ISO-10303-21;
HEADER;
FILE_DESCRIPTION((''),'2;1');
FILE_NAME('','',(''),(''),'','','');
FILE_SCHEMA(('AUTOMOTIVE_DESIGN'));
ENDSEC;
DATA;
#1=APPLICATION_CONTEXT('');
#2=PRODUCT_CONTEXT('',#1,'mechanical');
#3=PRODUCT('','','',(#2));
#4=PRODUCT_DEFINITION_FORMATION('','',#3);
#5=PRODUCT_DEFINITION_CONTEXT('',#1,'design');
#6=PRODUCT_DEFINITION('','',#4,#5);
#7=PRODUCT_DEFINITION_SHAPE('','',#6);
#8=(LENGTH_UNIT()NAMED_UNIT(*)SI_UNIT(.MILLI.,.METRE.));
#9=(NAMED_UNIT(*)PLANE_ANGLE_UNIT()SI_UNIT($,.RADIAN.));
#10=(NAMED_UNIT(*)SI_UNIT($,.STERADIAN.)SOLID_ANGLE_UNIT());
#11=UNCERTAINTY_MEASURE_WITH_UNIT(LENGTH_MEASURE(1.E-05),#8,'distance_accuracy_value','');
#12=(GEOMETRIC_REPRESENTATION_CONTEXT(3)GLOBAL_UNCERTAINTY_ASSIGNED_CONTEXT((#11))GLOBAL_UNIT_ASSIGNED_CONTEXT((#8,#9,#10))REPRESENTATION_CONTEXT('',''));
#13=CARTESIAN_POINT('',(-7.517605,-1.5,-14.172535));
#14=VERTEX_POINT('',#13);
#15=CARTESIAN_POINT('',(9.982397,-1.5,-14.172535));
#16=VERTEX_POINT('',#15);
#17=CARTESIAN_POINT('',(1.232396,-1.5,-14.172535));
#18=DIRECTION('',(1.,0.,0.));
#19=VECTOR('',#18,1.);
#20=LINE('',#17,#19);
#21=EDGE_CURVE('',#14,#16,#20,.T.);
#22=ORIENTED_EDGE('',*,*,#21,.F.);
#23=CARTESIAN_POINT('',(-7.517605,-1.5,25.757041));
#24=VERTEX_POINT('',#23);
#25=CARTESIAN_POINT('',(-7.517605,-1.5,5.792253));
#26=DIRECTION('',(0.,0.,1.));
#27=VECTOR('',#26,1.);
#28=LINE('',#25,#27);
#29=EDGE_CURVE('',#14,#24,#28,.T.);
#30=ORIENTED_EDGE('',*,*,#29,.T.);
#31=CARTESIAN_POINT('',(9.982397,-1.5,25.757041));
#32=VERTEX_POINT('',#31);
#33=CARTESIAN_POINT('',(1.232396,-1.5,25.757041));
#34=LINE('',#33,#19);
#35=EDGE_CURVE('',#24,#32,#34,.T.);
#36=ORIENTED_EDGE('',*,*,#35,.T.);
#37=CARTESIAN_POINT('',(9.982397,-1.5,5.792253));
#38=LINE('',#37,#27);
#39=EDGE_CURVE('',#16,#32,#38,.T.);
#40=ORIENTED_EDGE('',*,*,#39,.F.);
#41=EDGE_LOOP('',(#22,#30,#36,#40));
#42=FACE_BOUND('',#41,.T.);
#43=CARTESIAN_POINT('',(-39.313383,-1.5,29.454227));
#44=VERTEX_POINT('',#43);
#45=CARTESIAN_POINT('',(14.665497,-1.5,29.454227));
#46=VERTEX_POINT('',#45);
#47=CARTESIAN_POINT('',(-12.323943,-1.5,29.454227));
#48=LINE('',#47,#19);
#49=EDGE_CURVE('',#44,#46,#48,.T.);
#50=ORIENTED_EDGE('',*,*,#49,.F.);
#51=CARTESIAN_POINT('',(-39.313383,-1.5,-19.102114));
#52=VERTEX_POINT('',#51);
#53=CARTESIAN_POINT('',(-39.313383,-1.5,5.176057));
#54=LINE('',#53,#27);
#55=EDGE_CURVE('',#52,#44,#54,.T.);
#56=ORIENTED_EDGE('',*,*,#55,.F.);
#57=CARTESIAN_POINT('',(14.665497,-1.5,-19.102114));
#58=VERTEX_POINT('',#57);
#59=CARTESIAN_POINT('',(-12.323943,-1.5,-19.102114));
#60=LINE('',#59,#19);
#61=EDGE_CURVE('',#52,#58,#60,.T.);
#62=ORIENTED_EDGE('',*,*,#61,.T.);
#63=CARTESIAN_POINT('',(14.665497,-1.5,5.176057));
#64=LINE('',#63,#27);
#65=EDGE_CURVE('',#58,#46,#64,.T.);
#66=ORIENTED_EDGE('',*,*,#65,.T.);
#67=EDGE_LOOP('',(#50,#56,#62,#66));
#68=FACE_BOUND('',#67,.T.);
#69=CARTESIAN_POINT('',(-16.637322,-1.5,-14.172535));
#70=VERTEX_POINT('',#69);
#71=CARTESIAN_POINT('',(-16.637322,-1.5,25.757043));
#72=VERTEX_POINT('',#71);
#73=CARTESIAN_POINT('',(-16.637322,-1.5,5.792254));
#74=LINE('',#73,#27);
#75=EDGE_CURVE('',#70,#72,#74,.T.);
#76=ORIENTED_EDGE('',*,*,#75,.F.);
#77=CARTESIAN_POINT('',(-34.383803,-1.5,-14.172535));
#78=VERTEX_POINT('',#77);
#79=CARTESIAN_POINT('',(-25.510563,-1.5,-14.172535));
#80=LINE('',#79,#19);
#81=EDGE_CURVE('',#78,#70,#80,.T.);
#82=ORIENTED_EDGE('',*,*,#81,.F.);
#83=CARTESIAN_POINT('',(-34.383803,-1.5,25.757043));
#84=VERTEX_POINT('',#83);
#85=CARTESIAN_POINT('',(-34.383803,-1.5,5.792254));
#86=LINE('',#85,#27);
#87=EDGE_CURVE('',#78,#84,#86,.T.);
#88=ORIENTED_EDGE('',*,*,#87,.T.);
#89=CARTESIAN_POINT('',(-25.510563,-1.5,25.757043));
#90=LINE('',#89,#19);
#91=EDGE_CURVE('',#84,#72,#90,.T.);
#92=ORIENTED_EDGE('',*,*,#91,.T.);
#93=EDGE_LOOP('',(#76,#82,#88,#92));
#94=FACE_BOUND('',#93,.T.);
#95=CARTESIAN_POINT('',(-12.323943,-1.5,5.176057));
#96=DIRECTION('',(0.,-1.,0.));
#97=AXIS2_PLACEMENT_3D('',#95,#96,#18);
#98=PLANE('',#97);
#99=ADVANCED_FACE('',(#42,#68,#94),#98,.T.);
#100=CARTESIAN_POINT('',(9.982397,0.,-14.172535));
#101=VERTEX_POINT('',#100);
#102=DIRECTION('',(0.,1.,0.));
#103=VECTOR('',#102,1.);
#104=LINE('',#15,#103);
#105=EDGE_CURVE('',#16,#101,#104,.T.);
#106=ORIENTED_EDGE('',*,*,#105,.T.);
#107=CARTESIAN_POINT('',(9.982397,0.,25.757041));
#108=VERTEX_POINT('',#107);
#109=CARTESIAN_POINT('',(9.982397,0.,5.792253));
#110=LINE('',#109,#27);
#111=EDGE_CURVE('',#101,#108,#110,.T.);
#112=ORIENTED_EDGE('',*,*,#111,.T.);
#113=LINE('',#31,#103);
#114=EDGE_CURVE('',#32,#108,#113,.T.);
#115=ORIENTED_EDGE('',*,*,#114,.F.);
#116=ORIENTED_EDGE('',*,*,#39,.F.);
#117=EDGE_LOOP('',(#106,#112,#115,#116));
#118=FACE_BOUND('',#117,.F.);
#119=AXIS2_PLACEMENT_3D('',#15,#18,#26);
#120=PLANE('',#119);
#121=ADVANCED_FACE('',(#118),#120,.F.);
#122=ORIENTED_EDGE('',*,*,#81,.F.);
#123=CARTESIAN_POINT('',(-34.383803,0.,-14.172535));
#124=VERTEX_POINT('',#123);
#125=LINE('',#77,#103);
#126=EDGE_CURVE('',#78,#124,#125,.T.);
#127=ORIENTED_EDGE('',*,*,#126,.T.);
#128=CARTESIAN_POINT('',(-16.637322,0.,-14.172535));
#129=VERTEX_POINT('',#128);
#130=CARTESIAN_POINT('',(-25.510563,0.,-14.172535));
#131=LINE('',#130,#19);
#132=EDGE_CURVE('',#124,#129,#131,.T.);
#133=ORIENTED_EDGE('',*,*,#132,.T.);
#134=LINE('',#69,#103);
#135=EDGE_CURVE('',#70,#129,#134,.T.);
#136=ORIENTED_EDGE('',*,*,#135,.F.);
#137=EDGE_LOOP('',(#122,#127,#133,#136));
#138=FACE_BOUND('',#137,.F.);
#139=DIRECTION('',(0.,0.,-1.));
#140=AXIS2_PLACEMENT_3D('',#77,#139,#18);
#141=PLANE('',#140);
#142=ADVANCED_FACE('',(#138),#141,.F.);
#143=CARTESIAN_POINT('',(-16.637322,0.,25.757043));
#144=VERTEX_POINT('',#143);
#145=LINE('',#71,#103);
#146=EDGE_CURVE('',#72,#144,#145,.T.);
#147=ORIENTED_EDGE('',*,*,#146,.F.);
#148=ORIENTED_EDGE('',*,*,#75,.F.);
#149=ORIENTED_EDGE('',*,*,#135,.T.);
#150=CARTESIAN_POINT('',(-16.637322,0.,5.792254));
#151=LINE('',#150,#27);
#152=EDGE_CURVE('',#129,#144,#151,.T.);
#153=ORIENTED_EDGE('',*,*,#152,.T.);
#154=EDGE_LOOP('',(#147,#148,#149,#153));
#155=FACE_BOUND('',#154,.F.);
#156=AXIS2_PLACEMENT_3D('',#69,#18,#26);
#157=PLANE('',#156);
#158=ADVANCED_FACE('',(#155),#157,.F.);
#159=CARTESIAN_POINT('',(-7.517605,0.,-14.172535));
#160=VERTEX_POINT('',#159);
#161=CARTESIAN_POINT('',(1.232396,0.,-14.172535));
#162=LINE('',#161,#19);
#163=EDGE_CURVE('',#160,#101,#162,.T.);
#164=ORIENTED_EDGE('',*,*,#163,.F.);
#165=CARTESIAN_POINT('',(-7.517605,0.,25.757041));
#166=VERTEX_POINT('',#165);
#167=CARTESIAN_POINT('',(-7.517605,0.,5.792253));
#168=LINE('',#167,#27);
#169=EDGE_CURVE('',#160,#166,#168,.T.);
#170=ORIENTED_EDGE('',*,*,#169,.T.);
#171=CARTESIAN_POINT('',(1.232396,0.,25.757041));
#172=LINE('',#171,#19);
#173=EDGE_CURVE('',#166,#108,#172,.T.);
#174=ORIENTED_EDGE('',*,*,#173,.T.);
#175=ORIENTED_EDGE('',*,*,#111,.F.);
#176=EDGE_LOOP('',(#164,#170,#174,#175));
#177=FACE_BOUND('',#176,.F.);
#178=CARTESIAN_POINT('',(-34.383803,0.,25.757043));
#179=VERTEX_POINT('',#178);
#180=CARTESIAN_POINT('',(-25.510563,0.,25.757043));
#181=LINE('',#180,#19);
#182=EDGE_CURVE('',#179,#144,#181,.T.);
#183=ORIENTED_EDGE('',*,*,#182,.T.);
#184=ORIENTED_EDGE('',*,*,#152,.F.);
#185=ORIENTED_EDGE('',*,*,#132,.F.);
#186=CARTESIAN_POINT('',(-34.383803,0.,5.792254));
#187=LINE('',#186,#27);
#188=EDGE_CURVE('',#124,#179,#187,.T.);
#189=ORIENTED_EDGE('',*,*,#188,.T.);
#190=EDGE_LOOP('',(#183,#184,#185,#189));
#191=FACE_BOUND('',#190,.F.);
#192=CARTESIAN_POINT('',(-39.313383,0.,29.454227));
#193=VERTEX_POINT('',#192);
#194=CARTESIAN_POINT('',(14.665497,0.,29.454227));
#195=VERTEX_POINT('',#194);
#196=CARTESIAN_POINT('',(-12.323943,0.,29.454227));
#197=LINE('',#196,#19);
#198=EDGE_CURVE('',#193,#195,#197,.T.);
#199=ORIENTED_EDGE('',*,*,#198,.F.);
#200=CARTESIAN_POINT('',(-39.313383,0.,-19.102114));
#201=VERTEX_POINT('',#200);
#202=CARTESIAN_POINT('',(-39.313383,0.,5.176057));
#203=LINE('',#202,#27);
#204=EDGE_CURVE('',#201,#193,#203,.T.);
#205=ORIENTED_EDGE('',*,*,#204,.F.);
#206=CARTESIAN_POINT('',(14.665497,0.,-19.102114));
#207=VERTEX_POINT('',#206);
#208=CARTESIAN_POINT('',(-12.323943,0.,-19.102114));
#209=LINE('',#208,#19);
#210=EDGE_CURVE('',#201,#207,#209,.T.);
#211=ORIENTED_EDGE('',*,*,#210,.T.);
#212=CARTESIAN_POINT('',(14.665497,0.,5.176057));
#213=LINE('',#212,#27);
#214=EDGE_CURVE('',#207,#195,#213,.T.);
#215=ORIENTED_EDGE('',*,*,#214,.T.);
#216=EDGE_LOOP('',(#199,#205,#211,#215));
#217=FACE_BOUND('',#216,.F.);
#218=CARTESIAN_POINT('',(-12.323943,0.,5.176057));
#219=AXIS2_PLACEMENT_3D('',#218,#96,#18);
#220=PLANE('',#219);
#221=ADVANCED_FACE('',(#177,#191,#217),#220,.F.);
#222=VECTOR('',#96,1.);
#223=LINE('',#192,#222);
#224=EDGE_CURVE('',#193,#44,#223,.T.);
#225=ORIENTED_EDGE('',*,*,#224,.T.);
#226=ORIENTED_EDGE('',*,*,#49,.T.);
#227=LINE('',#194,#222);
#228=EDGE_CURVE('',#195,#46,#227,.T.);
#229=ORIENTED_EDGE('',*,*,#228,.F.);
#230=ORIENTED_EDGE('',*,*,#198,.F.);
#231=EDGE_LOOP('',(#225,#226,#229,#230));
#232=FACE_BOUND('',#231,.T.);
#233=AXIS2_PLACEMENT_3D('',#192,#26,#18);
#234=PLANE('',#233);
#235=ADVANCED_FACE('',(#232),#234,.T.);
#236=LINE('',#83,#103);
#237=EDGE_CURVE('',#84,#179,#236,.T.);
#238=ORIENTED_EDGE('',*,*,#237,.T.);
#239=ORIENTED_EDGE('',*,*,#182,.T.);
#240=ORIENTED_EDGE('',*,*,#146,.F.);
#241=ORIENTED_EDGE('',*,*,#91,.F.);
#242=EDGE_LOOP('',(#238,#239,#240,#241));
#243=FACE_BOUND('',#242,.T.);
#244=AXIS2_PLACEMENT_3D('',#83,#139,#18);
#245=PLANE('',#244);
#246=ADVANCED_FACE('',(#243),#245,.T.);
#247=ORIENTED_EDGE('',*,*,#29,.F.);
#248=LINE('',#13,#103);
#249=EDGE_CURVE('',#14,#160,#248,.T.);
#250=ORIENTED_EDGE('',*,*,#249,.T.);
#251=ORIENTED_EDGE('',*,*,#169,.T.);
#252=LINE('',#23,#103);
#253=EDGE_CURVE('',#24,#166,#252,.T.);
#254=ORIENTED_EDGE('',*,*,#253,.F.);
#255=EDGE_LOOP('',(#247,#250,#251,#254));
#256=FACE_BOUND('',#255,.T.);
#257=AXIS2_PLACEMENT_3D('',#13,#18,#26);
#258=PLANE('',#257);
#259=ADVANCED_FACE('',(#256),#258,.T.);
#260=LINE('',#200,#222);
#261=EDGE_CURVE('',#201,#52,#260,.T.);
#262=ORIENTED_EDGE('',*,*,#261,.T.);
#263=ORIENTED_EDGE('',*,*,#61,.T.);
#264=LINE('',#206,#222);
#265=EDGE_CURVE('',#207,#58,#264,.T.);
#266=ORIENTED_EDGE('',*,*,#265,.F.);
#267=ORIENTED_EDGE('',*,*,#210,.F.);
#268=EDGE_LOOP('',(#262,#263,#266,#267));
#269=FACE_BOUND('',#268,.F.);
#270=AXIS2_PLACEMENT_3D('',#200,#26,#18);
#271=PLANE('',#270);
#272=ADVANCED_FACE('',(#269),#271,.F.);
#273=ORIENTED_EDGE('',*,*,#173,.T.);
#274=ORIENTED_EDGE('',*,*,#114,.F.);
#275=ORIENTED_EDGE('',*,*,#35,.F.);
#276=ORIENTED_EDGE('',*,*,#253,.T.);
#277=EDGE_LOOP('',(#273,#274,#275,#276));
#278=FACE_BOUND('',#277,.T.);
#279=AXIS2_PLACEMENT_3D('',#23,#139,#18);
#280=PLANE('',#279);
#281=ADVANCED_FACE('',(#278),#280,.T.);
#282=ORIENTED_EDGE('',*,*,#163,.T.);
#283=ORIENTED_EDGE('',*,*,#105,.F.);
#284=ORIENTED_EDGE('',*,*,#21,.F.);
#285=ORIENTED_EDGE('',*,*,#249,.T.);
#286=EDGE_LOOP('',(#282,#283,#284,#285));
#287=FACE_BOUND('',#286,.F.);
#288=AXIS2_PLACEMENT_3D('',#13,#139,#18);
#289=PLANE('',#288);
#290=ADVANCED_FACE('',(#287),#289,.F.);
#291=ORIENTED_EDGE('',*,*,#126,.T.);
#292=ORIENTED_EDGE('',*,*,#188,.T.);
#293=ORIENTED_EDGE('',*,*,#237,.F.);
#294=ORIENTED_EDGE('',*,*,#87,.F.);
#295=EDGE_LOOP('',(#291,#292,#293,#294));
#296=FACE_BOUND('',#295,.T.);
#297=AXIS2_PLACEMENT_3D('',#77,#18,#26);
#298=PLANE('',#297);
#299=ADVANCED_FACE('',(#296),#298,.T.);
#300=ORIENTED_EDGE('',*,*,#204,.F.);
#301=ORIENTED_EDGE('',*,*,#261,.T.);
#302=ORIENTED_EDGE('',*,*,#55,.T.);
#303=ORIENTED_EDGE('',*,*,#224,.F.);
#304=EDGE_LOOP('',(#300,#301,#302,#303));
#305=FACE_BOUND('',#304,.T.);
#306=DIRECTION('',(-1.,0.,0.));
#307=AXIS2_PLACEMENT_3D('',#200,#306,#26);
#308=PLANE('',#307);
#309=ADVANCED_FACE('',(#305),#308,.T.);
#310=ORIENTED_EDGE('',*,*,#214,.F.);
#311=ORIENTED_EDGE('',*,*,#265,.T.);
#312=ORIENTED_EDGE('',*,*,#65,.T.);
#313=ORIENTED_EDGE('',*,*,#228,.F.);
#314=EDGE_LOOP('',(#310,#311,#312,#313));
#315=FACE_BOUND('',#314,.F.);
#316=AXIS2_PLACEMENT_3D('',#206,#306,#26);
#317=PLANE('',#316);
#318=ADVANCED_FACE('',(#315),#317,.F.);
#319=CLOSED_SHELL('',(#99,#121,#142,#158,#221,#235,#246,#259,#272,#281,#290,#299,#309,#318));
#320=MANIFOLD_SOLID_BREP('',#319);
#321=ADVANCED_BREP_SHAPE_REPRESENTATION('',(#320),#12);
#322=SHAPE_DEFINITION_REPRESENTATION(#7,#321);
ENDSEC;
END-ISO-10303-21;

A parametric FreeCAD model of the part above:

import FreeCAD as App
import Part
import Sketcher

V = App.Vector
Q = App.Units.Quantity


def add_polygon(sketch, points):
    """Adds a closed chain of lines whose ends are joined by coincident constraints."""
    first, n = sketch.GeometryCount, len(points)
    for a, b in zip(points, points[1:] + points[:1]):
        sketch.addGeometry(Part.LineSegment(App.Vector(*a, 0), App.Vector(*b, 0)), False)
    for i in range(n):
        sketch.addConstraint(Sketcher.Constraint("Coincident", first + i, 2, first + (i + 1) % n, 1))

doc = App.newDocument("Part")
body = doc.addObject("PartDesign::Body", "Body")

# Sketch on XZ plane
sketch1 = doc.addObject("Sketcher::SketchObject", "Sketch")
body.addObject(sketch1)
sketch1.AttachmentSupport = (doc.XZ_Plane, [""])
sketch1.MapMode = "FlatFace"
add_polygon(sketch1, [(-39, 29), (-39, -19), (15, -19), (15, 29)])  # lines 0-3
sketch1.addConstraint(Sketcher.Constraint("Vertical", 0))
sketch1.addConstraint(Sketcher.Constraint("Horizontal", 1))
sketch1.addConstraint(Sketcher.Constraint("Vertical", 2))
sketch1.addConstraint(Sketcher.Constraint("Horizontal", 3))
sketch1.addConstraint(Sketcher.Constraint("DistanceX", 1, 1, 1, 2, Q("53.97888 mm")))
sketch1.addConstraint(Sketcher.Constraint("DistanceY", 0, 2, 0, 1, Q("48.556341 mm")))
sketch1.addConstraint(Sketcher.Constraint("DistanceX", 0, 2, -1, 1, Q("39.313383 mm")))
sketch1.addConstraint(Sketcher.Constraint("DistanceY", 0, 2, -1, 1, Q("19.102114 mm")))
pad1 = doc.addObject("PartDesign::Pad", "Pad")
body.addObject(pad1)
pad1.Profile = sketch1
pad1.Length = 1.5

# Sketch on XZ plane
sketch2 = doc.addObject("Sketcher::SketchObject", "Sketch001")
body.addObject(sketch2)
sketch2.AttachmentSupport = (doc.XZ_Plane, [""])
sketch2.MapMode = "FlatFace"
sketch2.AttachmentOffset = App.Placement(V(0, 0, 1.5), App.Rotation())
add_polygon(sketch2, [(-34, 26), (-34, -14), (-17, -14), (-17, 26)])  # lines 0-3
add_polygon(sketch2, [(-8, 26), (-8, -14), (10, -14), (10, 26)])  # lines 4-7
sketch2.addConstraint(Sketcher.Constraint("Vertical", 0))
sketch2.addConstraint(Sketcher.Constraint("Horizontal", 1))
sketch2.addConstraint(Sketcher.Constraint("Vertical", 2))
sketch2.addConstraint(Sketcher.Constraint("Horizontal", 3))
sketch2.addConstraint(Sketcher.Constraint("Vertical", 4))
sketch2.addConstraint(Sketcher.Constraint("Horizontal", 5))
sketch2.addConstraint(Sketcher.Constraint("Vertical", 6))
sketch2.addConstraint(Sketcher.Constraint("Horizontal", 7))
sketch2.addConstraint(Sketcher.Constraint("Horizontal", 1, 2, 4, 2))
sketch2.addConstraint(Sketcher.Constraint("Horizontal", 3, 2, 6, 2))
sketch2.addConstraint(Sketcher.Constraint("DistanceX", 1, 1, 1, 2, Q("17.746481 mm")))
sketch2.addConstraint(Sketcher.Constraint("DistanceX", 0, 2, 4, 2, Q("26.866198 mm")))
sketch2.addConstraint(Sketcher.Constraint("DistanceX", 0, 2, 5, 2, Q("44.3662 mm")))
sketch2.addConstraint(Sketcher.Constraint("DistanceY", 0, 2, 0, 1, Q("39.929578 mm")))
sketch2.addConstraint(Sketcher.Constraint("DistanceY", -1, 1, 6, 2, Q("25.757041 mm")))
sketch2.addConstraint(Sketcher.Constraint("DistanceX", 0, 2, -1, 1, Q("34.383803 mm")))
pocket1 = doc.addObject("PartDesign::Pocket", "Pocket")
body.addObject(pocket1)
pocket1.Profile = sketch2
pocket1.Length = 1.5

doc.recompute()
